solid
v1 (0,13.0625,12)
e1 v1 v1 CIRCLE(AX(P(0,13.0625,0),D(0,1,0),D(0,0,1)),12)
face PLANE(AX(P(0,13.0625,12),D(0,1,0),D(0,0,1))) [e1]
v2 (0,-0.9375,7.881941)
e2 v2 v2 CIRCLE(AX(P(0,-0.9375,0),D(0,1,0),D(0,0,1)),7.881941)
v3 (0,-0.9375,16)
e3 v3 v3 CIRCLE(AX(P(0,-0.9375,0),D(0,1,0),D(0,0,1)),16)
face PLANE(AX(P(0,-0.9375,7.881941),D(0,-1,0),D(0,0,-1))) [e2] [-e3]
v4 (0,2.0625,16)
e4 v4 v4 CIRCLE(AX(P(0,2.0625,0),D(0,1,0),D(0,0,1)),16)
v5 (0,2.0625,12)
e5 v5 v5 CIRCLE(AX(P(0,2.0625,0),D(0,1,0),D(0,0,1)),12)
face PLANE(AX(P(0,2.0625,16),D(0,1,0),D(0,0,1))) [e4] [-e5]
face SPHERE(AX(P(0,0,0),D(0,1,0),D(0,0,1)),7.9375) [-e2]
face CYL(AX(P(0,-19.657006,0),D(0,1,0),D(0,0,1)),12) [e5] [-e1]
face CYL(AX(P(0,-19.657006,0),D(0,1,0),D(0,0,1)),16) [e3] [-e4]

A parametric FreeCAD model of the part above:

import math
import FreeCAD as App
import Part
import Sketcher
from FreeCAD import Vector
Q = App.Units.Quantity

doc = App.newDocument("Part")
params = doc.addObject("Spreadsheet::Sheet", "Params")
for row, (alias, value) in enumerate([
    ("sketch1_width", "21 mm"),
    ("sketch1_width2", "11 mm"),
    ("sketch1_width3", "3 mm"),
    ("sketch1_height", "12 mm"),
    ("sketch1_height2", "4 mm"),
    ("revolution_angle", "360 deg"),
], start=1):
    params.set(f"A{row}", alias)
    params.set(f"B{row}", "=" + value)
    params.setAlias(f"B{row}", alias)

body = doc.addObject("PartDesign::Body", "Body")

sketch1 = body.newObject("Sketcher::SketchObject", "Sketch")
sketch1.AttachmentSupport = (doc.getObject("YZ_Plane"), [""])
sketch1.MapMode = "FlatFace"
sketch1.addGeometry(Part.LineSegment(Vector(-0.9, 16, 0), Vector(-0.9, 7.9, 0)), False)
sketch1.addGeometry(Part.ArcOfCircle(Part.Circle(Vector(0, 0, 0), Vector(0, 0, 1), 7.9), math.radians(97), math.radians(180)), False)
sketch1.addGeometry(Part.LineSegment(Vector(-7.9, 0, 0), Vector(13.1, 0, 0)), False)
sketch1.addGeometry(Part.LineSegment(Vector(13.1, 0, 0), Vector(13.1, 12, 0)), False)
sketch1.addGeometry(Part.LineSegment(Vector(13.1, 12, 0), Vector(2.1, 12, 0)), False)
sketch1.addGeometry(Part.LineSegment(Vector(2.1, 12, 0), Vector(2.1, 16, 0)), False)
sketch1.addGeometry(Part.LineSegment(Vector(2.1, 16, 0), Vector(-0.9, 16, 0)), False)
sketch1.addConstraint(Sketcher.Constraint("Coincident", 0, 2, 1, 1))
sketch1.addConstraint(Sketcher.Constraint("Coincident", 1, 2, 2, 1))
sketch1.addConstraint(Sketcher.Constraint("Coincident", 2, 2, 3, 1))
sketch1.addConstraint(Sketcher.Constraint("Coincident", 3, 2, 4, 1))
sketch1.addConstraint(Sketcher.Constraint("Coincident", 4, 2, 5, 1))
sketch1.addConstraint(Sketcher.Constraint("Coincident", 5, 2, 6, 1))
sketch1.addConstraint(Sketcher.Constraint("Coincident", 6, 2, 0, 1))
sketch1.addConstraint(Sketcher.Constraint("Vertical", 0))
sketch1.addConstraint(Sketcher.Constraint("Horizontal", 2))
sketch1.addConstraint(Sketcher.Constraint("Vertical", 3))
sketch1.addConstraint(Sketcher.Constraint("Horizontal", 4))
sketch1.addConstraint(Sketcher.Constraint("Vertical", 5))
sketch1.addConstraint(Sketcher.Constraint("Horizontal", 6))
sketch1.addConstraint(Sketcher.Constraint("Coincident", 1, 3, -1, 1))
sketch1.addConstraint(Sketcher.Constraint("PointOnObject", 1, 2, -1))
sketch1.addConstraint(Sketcher.Constraint("DistanceX", 2, 1, 2, 2, Q("21 mm")))
sketch1.addConstraint(Sketcher.Constraint("DistanceX", 4, 2, 4, 1, Q("11 mm")))
sketch1.addConstraint(Sketcher.Constraint("DistanceX", 6, 2, 6, 1, Q("3 mm")))
sketch1.addConstraint(Sketcher.Constraint("DistanceY", 3, 1, 3, 2, Q("12 mm")))
sketch1.addConstraint(Sketcher.Constraint("DistanceY", 5, 1, 5, 2, Q("4 mm")))
sketch1.addConstraint(Sketcher.Constraint("Radius", 1, Q("7.9375 mm")))
sketch1.setExpression("Constraints[15]", "Params.sketch1_width")
sketch1.setExpression("Constraints[16]", "Params.sketch1_width2")
sketch1.setExpression("Constraints[17]", "Params.sketch1_width3")
sketch1.setExpression("Constraints[18]", "Params.sketch1_height")
sketch1.setExpression("Constraints[19]", "Params.sketch1_height2")
revolution = body.newObject("PartDesign::Revolution", "Revolution")
revolution.Profile = sketch1
revolution.ReferenceAxis = (sketch1, ["H_Axis"])
revolution.setExpression("Angle", "Params.revolution_angle")

doc.recompute()
